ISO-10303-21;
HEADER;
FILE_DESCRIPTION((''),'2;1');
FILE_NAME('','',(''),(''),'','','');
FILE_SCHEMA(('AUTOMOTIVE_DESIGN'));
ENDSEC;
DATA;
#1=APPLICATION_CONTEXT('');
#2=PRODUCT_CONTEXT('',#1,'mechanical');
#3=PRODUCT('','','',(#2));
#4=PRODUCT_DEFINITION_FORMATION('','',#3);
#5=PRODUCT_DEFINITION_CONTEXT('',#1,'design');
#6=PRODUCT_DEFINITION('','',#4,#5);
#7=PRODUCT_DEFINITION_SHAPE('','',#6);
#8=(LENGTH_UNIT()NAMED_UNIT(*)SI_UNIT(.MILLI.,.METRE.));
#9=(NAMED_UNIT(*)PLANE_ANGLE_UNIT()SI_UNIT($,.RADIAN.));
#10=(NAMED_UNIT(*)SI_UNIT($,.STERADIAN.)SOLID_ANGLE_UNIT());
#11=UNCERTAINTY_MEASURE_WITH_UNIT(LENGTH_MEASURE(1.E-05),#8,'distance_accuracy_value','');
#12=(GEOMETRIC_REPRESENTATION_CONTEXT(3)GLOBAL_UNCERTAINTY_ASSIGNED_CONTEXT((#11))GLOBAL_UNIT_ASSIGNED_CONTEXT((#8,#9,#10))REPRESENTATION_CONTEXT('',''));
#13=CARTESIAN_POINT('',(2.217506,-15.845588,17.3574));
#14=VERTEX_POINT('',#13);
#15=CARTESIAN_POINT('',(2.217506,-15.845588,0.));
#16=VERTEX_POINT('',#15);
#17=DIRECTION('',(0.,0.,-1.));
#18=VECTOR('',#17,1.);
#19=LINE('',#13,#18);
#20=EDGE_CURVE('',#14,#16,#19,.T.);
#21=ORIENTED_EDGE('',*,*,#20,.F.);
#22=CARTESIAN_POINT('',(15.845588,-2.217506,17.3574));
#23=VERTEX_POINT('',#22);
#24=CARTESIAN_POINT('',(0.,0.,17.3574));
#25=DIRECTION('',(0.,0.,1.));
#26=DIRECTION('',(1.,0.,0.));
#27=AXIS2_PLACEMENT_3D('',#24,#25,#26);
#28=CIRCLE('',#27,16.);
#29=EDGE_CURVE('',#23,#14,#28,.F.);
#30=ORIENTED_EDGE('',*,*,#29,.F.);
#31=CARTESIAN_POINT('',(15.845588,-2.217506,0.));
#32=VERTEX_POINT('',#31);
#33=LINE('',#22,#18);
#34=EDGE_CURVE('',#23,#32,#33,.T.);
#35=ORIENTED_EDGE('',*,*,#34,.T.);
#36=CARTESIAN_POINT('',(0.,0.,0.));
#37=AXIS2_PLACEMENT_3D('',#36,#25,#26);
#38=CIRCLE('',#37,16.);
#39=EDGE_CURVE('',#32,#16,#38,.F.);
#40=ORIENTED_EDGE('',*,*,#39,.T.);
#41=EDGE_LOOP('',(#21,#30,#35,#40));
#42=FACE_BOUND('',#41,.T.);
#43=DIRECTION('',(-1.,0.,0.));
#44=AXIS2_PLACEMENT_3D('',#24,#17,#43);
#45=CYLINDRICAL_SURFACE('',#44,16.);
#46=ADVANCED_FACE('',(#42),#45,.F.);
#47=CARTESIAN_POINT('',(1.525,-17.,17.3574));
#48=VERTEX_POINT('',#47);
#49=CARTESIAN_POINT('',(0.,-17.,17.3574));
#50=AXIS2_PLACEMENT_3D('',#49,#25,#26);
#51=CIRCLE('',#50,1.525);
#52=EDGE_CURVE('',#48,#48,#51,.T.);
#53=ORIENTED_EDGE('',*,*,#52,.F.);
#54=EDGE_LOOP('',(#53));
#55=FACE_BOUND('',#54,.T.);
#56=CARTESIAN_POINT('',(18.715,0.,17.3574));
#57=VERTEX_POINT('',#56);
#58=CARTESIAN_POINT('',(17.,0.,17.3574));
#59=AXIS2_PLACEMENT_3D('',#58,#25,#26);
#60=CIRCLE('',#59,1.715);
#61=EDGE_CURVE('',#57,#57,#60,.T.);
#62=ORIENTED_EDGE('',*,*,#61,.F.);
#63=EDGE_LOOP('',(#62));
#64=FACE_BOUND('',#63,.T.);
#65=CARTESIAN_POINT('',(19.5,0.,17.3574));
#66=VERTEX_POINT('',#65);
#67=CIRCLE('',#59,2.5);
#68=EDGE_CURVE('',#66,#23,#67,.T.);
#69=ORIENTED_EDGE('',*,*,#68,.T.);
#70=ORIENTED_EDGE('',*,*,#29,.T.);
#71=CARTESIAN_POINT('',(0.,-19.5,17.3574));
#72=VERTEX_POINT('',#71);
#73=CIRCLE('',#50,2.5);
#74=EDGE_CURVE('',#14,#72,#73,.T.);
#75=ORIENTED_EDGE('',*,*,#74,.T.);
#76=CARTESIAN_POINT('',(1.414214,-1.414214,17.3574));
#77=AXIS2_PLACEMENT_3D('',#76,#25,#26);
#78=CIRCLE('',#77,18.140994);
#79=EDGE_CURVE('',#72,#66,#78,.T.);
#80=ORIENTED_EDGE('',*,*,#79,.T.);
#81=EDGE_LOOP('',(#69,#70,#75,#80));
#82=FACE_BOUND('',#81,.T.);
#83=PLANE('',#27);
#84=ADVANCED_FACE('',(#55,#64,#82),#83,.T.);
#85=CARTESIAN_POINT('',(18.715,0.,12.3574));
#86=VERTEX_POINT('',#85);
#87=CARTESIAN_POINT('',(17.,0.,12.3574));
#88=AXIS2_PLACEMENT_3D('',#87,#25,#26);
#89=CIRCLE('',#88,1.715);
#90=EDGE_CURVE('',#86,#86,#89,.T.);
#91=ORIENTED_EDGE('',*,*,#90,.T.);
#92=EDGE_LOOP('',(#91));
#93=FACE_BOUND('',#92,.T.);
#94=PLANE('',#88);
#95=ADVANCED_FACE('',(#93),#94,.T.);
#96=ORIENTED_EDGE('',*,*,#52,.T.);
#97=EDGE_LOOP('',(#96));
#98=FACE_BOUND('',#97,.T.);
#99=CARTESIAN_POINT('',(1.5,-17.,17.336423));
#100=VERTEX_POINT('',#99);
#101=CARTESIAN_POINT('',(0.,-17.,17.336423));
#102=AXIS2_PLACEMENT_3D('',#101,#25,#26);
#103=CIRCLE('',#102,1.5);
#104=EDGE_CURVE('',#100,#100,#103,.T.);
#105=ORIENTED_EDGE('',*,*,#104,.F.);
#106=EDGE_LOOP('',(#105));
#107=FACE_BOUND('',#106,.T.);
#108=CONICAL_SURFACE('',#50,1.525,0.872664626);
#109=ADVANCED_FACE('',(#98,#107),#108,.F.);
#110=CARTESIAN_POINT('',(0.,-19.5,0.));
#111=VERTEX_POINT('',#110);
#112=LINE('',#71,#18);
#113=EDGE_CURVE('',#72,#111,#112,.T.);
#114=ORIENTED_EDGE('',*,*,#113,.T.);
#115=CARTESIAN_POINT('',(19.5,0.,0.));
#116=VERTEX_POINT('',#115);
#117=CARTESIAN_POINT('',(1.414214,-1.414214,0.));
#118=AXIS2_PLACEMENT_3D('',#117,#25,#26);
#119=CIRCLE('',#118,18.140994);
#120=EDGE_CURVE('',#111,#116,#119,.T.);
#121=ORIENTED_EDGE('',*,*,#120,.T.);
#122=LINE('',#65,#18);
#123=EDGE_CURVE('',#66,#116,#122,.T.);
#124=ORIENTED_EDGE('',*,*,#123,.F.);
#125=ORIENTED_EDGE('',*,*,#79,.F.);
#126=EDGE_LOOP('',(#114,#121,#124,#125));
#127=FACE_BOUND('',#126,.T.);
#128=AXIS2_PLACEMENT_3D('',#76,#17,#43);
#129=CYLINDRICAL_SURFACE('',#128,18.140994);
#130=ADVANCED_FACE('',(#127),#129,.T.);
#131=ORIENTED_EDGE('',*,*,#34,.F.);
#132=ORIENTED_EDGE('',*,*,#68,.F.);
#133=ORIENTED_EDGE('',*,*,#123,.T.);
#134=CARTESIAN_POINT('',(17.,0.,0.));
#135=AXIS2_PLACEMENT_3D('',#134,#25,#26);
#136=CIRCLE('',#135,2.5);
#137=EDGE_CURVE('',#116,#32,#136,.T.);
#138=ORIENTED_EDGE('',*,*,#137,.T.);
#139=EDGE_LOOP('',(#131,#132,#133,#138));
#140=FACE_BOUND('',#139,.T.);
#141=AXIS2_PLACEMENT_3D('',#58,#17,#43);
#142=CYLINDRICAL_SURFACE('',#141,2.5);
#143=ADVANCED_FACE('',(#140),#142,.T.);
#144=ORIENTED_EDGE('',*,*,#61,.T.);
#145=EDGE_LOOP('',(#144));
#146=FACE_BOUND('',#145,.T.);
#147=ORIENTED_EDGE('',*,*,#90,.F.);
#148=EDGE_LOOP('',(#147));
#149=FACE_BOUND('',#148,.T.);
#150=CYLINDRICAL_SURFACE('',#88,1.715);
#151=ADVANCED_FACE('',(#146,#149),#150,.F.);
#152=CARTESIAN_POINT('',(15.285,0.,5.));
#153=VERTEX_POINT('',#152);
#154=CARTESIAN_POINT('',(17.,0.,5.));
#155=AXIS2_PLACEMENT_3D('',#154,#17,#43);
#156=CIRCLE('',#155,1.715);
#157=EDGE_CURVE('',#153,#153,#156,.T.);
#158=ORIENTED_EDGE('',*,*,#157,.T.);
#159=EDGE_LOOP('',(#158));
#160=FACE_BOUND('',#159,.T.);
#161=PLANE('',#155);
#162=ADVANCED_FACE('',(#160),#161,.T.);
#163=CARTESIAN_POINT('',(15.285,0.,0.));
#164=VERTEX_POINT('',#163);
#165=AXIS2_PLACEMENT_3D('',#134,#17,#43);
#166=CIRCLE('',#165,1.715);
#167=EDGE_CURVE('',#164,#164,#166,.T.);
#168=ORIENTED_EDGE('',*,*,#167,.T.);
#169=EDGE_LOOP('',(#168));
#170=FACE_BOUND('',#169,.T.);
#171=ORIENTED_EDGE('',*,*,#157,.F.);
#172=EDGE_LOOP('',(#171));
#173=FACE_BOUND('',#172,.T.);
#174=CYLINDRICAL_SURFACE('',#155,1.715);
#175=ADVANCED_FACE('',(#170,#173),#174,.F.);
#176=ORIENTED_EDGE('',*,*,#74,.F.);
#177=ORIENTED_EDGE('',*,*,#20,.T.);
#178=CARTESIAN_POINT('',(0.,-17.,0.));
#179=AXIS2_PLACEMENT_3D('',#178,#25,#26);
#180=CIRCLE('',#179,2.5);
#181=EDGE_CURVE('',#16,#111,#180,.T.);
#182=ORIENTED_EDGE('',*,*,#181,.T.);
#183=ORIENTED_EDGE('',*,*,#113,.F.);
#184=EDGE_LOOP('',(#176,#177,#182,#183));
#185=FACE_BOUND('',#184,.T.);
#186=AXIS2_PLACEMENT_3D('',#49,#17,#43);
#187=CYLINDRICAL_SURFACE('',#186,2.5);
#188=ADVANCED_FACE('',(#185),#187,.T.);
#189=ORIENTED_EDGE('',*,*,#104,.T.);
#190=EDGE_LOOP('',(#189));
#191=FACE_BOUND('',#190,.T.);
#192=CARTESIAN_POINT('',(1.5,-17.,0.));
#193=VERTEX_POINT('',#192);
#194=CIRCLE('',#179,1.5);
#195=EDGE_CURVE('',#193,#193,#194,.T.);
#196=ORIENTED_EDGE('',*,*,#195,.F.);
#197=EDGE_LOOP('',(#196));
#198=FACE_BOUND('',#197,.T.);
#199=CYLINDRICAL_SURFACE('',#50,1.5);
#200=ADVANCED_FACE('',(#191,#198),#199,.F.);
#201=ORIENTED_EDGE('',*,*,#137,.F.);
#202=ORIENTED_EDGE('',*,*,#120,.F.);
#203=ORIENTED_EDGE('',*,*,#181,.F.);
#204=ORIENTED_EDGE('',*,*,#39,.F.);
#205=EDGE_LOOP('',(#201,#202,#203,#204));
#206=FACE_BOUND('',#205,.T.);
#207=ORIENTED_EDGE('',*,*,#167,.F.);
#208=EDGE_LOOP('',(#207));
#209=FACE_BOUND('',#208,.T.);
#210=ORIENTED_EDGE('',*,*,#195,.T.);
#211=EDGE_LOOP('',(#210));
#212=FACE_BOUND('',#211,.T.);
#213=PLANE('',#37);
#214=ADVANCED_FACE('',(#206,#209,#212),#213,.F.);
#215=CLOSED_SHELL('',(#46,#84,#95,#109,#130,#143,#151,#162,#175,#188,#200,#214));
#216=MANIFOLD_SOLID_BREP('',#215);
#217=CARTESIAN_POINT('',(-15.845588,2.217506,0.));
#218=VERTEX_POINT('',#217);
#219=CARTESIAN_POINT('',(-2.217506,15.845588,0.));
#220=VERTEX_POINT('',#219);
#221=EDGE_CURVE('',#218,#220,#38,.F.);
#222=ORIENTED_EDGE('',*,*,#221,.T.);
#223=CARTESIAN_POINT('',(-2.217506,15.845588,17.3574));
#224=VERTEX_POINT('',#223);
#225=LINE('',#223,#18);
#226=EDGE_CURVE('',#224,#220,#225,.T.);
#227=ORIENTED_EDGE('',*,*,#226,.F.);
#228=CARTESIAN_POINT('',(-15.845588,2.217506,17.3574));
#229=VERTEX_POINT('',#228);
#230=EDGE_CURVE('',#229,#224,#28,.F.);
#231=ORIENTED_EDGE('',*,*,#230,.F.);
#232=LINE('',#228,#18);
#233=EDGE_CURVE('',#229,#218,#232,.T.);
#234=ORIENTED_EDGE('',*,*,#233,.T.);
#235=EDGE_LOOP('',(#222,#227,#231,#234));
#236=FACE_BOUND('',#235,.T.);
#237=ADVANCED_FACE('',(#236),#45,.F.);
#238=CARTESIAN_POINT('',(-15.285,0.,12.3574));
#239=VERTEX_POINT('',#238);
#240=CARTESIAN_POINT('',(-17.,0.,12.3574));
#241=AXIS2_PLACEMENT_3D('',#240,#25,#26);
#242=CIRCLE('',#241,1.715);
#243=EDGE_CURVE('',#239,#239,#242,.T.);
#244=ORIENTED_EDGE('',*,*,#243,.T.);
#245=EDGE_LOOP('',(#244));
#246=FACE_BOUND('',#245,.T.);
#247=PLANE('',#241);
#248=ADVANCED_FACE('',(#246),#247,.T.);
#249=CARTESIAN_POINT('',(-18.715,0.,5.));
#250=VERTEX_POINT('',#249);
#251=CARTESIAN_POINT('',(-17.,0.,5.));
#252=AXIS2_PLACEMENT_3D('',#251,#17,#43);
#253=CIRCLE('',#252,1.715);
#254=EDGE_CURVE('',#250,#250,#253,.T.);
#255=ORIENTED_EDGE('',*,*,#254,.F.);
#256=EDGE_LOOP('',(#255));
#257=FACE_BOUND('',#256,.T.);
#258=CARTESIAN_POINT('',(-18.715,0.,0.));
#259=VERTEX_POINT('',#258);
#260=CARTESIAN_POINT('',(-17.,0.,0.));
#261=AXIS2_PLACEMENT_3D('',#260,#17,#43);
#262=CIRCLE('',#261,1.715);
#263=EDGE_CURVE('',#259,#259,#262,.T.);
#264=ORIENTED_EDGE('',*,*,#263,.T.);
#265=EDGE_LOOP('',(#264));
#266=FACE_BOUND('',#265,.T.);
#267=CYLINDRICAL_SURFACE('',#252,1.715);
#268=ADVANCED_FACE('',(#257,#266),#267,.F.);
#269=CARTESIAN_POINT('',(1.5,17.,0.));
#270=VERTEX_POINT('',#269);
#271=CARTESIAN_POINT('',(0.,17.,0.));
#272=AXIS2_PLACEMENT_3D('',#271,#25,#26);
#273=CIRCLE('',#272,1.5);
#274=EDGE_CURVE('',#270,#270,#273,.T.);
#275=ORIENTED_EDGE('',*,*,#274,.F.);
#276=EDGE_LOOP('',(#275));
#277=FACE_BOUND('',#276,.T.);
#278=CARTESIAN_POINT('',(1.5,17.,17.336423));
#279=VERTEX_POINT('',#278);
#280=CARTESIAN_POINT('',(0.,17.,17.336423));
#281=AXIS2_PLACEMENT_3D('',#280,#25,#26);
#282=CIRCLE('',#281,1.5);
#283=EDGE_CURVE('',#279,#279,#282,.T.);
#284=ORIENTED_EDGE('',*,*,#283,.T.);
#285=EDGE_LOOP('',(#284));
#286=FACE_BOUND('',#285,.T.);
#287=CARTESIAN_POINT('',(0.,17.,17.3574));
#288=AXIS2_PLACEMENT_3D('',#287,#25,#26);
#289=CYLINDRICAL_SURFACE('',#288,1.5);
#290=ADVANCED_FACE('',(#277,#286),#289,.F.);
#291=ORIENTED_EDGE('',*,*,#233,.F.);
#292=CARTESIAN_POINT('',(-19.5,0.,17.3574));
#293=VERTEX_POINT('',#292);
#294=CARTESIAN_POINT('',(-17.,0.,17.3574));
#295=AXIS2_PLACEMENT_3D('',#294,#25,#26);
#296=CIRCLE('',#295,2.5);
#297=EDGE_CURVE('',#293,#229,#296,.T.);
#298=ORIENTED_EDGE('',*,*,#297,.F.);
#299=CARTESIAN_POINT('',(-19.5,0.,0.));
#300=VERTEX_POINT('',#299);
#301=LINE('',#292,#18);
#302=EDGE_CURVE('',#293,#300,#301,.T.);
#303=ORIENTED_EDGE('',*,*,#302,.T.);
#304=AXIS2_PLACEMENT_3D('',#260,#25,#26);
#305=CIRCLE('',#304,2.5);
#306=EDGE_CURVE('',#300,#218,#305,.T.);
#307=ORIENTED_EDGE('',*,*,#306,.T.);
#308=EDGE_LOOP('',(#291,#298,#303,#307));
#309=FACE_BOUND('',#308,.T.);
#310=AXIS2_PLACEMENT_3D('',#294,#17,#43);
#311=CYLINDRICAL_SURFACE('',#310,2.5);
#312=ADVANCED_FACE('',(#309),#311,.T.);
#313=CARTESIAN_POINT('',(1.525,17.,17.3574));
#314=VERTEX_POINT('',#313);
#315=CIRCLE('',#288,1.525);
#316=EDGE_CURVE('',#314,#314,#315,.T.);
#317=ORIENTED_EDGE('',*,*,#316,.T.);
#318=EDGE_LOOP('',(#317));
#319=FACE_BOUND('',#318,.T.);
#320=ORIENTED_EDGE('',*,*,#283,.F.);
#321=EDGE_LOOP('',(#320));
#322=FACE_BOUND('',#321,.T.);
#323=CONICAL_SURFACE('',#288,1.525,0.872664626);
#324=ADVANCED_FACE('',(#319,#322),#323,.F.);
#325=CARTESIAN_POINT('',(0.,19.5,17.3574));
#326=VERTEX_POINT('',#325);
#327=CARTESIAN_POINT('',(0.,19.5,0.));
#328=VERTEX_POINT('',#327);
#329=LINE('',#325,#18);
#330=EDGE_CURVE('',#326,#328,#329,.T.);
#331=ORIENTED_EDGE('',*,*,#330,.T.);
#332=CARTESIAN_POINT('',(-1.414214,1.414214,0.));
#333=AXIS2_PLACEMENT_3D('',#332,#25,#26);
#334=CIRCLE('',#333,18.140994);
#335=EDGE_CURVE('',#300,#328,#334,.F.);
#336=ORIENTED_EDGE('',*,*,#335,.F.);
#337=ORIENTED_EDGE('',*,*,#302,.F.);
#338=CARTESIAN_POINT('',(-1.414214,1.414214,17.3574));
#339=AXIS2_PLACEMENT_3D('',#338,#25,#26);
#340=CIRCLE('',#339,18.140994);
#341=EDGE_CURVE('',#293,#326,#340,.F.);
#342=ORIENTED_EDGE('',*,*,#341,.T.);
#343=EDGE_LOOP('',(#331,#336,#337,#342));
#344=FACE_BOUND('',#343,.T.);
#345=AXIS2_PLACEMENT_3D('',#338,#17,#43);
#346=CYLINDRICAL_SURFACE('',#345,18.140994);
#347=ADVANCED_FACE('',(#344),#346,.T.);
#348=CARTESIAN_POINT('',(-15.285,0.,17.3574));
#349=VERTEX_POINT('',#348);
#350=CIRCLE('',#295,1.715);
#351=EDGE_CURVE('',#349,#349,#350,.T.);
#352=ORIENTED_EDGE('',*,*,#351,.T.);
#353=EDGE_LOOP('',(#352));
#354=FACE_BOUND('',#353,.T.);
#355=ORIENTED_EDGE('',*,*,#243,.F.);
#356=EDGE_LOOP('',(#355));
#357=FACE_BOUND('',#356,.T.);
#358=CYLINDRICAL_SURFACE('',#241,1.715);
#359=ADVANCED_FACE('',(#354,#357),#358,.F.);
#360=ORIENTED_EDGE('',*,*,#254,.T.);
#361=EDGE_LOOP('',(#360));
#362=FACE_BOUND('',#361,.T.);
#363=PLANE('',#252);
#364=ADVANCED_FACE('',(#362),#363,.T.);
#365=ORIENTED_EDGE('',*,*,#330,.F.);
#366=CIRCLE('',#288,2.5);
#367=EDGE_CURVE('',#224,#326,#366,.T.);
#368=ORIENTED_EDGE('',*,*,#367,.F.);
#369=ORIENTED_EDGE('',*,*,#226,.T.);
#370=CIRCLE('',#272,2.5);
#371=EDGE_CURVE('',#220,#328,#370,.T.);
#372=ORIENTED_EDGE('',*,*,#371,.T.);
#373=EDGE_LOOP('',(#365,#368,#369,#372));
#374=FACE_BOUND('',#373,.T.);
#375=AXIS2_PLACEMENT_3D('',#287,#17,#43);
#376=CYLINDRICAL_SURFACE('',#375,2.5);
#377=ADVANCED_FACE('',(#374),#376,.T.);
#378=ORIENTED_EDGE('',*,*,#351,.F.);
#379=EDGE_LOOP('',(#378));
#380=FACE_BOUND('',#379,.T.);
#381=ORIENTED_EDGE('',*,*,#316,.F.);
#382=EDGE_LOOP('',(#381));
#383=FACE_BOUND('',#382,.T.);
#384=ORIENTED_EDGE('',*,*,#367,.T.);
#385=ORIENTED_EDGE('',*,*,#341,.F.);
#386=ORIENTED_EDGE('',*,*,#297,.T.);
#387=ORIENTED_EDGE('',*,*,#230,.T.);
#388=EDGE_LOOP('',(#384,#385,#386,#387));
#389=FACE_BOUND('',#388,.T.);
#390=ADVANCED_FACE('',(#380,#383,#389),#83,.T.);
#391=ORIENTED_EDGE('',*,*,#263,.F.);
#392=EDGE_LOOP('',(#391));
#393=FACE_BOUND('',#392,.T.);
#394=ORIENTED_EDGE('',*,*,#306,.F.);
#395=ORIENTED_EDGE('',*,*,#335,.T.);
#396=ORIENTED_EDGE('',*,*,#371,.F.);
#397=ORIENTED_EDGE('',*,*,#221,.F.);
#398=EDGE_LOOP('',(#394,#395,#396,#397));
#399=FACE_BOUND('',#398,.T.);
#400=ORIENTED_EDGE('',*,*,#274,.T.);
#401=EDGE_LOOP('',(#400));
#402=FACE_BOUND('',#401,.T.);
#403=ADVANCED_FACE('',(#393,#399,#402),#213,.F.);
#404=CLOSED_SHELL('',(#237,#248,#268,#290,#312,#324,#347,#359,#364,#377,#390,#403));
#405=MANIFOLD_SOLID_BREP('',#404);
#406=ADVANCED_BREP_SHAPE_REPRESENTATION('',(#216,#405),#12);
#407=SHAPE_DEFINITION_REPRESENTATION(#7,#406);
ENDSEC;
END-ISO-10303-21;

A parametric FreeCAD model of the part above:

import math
import FreeCAD as App
import Part
import Sketcher
from FreeCAD import Vector
Q = App.Units.Quantity

doc = App.newDocument("Part")
params = doc.addObject("Spreadsheet::Sheet", "Params")
for row, (alias, value) in enumerate([
    ("sketch1_radius", "16 mm"),
    ("sketch1_radius2", "2.5 mm"),
    ("pad1_length", "17.3574 mm"),
    ("sketch2_diameter", "3 mm"),
    ("hole_diameter", "3 mm"),
    ("hole_csink_diameter", "3.05 mm"),
    ("sketch3_diameter", "3.43 mm"),
    ("pocket1_length", "5 mm"),
    ("sketch4_diameter", "3.43 mm"),
    ("pocket2_length", "5 mm"),
], start=1):
    params.set(f"A{row}", alias)
    params.set(f"B{row}", "=" + value)
    params.setAlias(f"B{row}", alias)

body = doc.addObject("PartDesign::Body", "Body")
body.AllowCompound = True

# Sketch on XY plane
sketch1 = body.newObject("Sketcher::SketchObject", "Sketch")
sketch1.AttachmentSupport = (doc.getObject("XY_Plane"), [""])
sketch1.MapMode = "FlatFace"
sketch1.addGeometry([
    Part.ArcOfCircle(Part.Circle(Vector(-17, 0, 0), Vector(0, 0, 1), 2.5), math.radians(180), math.radians(422)),  # 0
    Part.ArcOfCircle(Part.Circle(Vector(0, 0, 0), Vector(0, 0, 1), 16), math.radians(98), math.radians(172)),  # 1
    Part.ArcOfCircle(Part.Circle(Vector(0, 17, 0), Vector(0, 0, 1), 2.5), math.radians(-152), math.radians(90)),  # 2
    Part.ArcOfCircle(Part.Circle(Vector(-1.4, 1.4, 0), Vector(0, 0, 1), 18.1), math.radians(86), math.radians(184)),  # 3
    Part.ArcOfCircle(Part.Circle(Vector(1.4, -1.4, 0), Vector(0, 0, 1), 18.1), math.radians(-94), math.radians(4)),  # 4
    Part.ArcOfCircle(Part.Circle(Vector(17, 0, 0), Vector(0, 0, 1), 2.5), math.radians(0), math.radians(242)),  # 5
    Part.ArcOfCircle(Part.Circle(Vector(0, 0, 0), Vector(0, 0, 1), 16), math.radians(-82), math.radians(-8)),  # 6
    Part.ArcOfCircle(Part.Circle(Vector(0, -17, 0), Vector(0, 0, 1), 2.5), math.radians(28), math.radians(270)),  # 7
], False)
sketch1.addConstraint([
    Sketcher.Constraint("Coincident", 0, 2, 1, 2),
    Sketcher.Constraint("Coincident", 1, 1, 2, 1),
    Sketcher.Constraint("Coincident", 2, 2, 3, 1),
    Sketcher.Constraint("Coincident", 3, 2, 0, 1),
    Sketcher.Constraint("Coincident", 4, 2, 5, 1),
    Sketcher.Constraint("Coincident", 5, 2, 6, 2),
    Sketcher.Constraint("Coincident", 6, 1, 7, 1),
    Sketcher.Constraint("Coincident", 7, 2, 4, 1),
    Sketcher.Constraint("Coincident", 1, 3, -1, 1),
    Sketcher.Constraint("Coincident", 6, 3, -1, 1),
    Sketcher.Constraint("Equal", 0, 2),
    Sketcher.Constraint("Equal", 3, 4),
    Sketcher.Constraint("Equal", 2, 5),
    Sketcher.Constraint("Equal", 1, 6),
    Sketcher.Constraint("Equal", 5, 7),
    Sketcher.Constraint("Symmetric", 3, 3, 4, 3, -1, 1),
    Sketcher.Constraint("Symmetric", 0, 3, 5, 3, -1, 1),
    Sketcher.Constraint("Symmetric", 2, 3, 7, 3, -1, 1),
    Sketcher.Constraint("PointOnObject", 0, 3, -1),
    Sketcher.Constraint("PointOnObject", 2, 3, -2),
    Sketcher.Constraint("PointOnObject", 2, 2, -2),
    Sketcher.Constraint("PointOnObject", 3, 2, -1),
    Sketcher.Constraint("Radius", 1, Q("16 mm")),
    Sketcher.Constraint("Radius", 0, Q("2.5 mm")),
    Sketcher.Constraint("DistanceX", 0, 3, -1, 1, Q("17 mm")),
    Sketcher.Constraint("DistanceY", -1, 1, 2, 3, Q("17 mm")),
    Sketcher.Constraint("Radius", 3, Q("18.140994 mm")),
])
sketch1.setExpression("Constraints[22]", "Params.sketch1_radius")
sketch1.setExpression("Constraints[23]", "Params.sketch1_radius2")
pad1 = body.newObject("PartDesign::Pad", "Pad")
pad1.Profile = sketch1
pad1.setExpression("Length", "Params.pad1_length")

# Sketch on XY plane
sketch2 = body.newObject("Sketcher::SketchObject", "Sketch001")
sketch2.AttachmentSupport = (doc.getObject("XY_Plane"), [""])
sketch2.MapMode = "FlatFace"
sketch2.AttachmentOffset = App.Placement(Vector(0, 0, 17.3574), App.Rotation())
sketch2.addGeometry([
    Part.Circle(Vector(0, 17, 0), Vector(0, 0, 1), 1.5),
    Part.Circle(Vector(0, -17, 0), Vector(0, 0, 1), 1.5),
], False)
sketch2.addConstraint([
    Sketcher.Constraint("Equal", 0, 1),
    Sketcher.Constraint("Symmetric", 0, 3, 1, 3, -1, 1),
    Sketcher.Constraint("PointOnObject", 0, 3, -2),
    Sketcher.Constraint("Diameter", 0, Q("3 mm")),
    Sketcher.Constraint("DistanceY", -1, 1, 0, 3, Q("17 mm")),
])
sketch2.setExpression("Constraints[3]", "Params.sketch2_diameter")
doc.recompute()
hole = body.newObject("PartDesign::Hole", "Hole")
hole.Profile = sketch2
hole.ThreadType = "None"
hole.setExpression("Diameter", "Params.hole_diameter")
hole.DepthType = "ThroughAll"
hole.HoleCutType = "Countersink"
hole.setExpression("HoleCutDiameter", "Params.hole_csink_diameter")
hole.HoleCutCountersinkAngle = 100

# Sketch on XY plane
sketch3 = body.newObject("Sketcher::SketchObject", "Sketch002")
sketch3.AttachmentSupport = (doc.getObject("XY_Plane"), [""])
sketch3.MapMode = "FlatFace"
sketch3.AttachmentOffset = App.Placement(Vector(0, 0, 17.3574), App.Rotation())
sketch3.addGeometry([
    Part.Circle(Vector(-17, 0, 0), Vector(0, 0, 1), 1.7),
    Part.Circle(Vector(17, 0, 0), Vector(0, 0, 1), 1.7),
], False)
sketch3.addConstraint([
    Sketcher.Constraint("Equal", 0, 1),
    Sketcher.Constraint("Symmetric", 0, 3, 1, 3, -1, 1),
    Sketcher.Constraint("PointOnObject", 0, 3, -1),
    Sketcher.Constraint("Diameter", 0, Q("3.43 mm")),
    Sketcher.Constraint("DistanceX", 0, 3, -1, 1, Q("17 mm")),
])
sketch3.setExpression("Constraints[3]", "Params.sketch3_diameter")
pocket1 = body.newObject("PartDesign::Pocket", "Pocket")
pocket1.Profile = sketch3
pocket1.setExpression("Length", "Params.pocket1_length")

# Sketch on XY plane
sketch4 = body.newObject("Sketcher::SketchObject", "Sketch003")
sketch4.AttachmentSupport = (doc.getObject("XY_Plane"), [""])
sketch4.MapMode = "FlatFace"
sketch4.AttachmentOffset = App.Placement(Vector(0, 0, 5), App.Rotation())
sketch4.addGeometry([
    Part.Circle(Vector(-17, 0, 0), Vector(0, 0, 1), 1.7),
    Part.Circle(Vector(17, 0, 0), Vector(0, 0, 1), 1.7),
], False)
sketch4.addConstraint([
    Sketcher.Constraint("Equal", 0, 1),
    Sketcher.Constraint("Symmetric", 0, 3, 1, 3, -1, 1),
    Sketcher.Constraint("PointOnObject", 0, 3, -1),
    Sketcher.Constraint("Diameter", 0, Q("3.43 mm")),
    Sketcher.Constraint("DistanceX", 0, 3, -1, 1, Q("17 mm")),
])
sketch4.setExpression("Constraints[3]", "Params.sketch4_diameter")
pocket2 = body.newObject("PartDesign::Pocket", "Pocket001")
pocket2.Profile = sketch4
pocket2.setExpression("Length", "Params.pocket2_length")

doc.recompute()
